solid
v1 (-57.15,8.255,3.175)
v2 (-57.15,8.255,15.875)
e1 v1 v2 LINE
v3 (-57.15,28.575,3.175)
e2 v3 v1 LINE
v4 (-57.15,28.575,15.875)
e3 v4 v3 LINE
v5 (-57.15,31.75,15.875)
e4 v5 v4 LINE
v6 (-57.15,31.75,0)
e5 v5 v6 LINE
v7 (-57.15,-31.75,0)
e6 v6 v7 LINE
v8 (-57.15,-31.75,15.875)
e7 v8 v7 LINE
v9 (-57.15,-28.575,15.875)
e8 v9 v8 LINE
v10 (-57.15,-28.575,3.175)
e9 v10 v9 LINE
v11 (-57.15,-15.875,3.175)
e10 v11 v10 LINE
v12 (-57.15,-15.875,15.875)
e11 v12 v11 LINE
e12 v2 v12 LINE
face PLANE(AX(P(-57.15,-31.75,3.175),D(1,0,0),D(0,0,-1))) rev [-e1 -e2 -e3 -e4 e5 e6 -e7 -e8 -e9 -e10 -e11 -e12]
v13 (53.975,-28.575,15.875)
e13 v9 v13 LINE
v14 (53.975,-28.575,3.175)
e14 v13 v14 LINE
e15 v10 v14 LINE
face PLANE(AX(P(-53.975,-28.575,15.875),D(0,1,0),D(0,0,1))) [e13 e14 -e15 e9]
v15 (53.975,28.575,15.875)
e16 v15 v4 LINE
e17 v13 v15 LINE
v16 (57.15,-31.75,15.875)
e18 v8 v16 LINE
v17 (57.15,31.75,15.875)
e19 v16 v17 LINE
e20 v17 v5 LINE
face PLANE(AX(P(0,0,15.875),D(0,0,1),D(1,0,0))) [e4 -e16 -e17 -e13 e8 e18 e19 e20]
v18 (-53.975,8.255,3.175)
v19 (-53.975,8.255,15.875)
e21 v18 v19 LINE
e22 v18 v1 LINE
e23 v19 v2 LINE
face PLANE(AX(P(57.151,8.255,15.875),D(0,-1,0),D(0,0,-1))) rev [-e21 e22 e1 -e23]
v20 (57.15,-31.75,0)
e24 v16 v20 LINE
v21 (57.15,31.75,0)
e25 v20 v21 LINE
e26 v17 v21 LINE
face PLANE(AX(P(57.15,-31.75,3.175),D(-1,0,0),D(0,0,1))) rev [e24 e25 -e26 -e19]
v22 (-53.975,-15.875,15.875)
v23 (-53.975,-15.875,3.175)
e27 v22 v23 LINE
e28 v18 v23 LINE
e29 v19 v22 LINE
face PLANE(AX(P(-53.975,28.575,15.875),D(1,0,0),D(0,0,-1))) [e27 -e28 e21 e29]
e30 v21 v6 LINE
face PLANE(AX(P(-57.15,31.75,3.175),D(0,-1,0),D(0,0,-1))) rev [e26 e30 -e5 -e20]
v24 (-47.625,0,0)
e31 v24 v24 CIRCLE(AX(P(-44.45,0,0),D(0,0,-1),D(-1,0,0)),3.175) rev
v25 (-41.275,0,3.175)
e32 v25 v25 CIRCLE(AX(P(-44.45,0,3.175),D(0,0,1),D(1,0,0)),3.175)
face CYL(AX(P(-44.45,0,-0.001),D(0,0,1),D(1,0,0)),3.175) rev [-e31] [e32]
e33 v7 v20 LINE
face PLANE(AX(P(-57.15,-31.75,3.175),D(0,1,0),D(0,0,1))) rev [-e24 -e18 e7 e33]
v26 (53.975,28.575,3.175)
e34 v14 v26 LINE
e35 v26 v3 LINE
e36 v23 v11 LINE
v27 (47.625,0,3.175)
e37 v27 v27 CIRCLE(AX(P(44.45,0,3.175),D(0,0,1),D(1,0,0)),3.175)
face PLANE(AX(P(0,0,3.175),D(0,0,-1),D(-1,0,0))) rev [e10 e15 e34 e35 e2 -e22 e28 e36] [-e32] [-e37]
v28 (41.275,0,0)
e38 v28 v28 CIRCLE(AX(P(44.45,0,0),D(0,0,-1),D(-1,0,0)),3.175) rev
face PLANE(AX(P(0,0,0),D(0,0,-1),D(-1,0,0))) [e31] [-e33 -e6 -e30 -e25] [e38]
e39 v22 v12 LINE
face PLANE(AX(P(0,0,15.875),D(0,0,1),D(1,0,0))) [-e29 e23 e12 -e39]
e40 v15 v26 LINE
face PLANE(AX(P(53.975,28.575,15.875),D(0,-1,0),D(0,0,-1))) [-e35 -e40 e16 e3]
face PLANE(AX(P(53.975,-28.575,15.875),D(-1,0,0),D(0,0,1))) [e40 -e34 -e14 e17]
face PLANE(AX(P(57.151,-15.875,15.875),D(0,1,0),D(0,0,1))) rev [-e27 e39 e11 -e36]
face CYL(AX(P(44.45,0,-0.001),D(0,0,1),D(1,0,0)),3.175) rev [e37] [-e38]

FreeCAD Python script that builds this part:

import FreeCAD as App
import Part
import Sketcher
Q = App.Units.Quantity

doc = App.newDocument("Part")
body = doc.addObject("PartDesign::Body", "Body")

# Sketch on XY plane
sketch1 = body.newObject("Sketcher::SketchObject", "Sketch")
sketch1.AttachmentSupport = (doc.getObject("XY_Plane"), [""])
sketch1.MapMode = "FlatFace"
sketch1.addGeometry([
    Part.LineSegment(App.Vector(-57.15, 31.75, 0), App.Vector(-57.15, -31.75, 0)),
    Part.LineSegment(App.Vector(-57.15, -31.75, 0), App.Vector(57.15, -31.75, 0)),
    Part.LineSegment(App.Vector(57.15, -31.75, 0), App.Vector(57.15, 31.75, 0)),
    Part.LineSegment(App.Vector(57.15, 31.75, 0), App.Vector(-57.15, 31.75, 0)),
], False)
sketch1.addConstraint([
    Sketcher.Constraint("Coincident", 0, 2, 1, 1),
    Sketcher.Constraint("Coincident", 1, 2, 2, 1),
    Sketcher.Constraint("Coincident", 2, 2, 3, 1),
    Sketcher.Constraint("Coincident", 3, 2, 0, 1),
    Sketcher.Constraint("Vertical", 0),
    Sketcher.Constraint("Horizontal", 1),
    Sketcher.Constraint("Vertical", 2),
    Sketcher.Constraint("Horizontal", 3),
    Sketcher.Constraint("Symmetric", 0, 2, 2, 2, -1, 1),
    Sketcher.Constraint("DistanceX", 1, 1, 1, 2, Q("4.5 in")),
    Sketcher.Constraint("DistanceY", 0, 2, 0, 1, Q("2.5 in")),
])
pad1 = body.newObject("PartDesign::Pad", "Pad")
pad1.Profile = sketch1
pad1.Length = Q("0.125 in")

# Sketch on XY plane
sketch2 = body.newObject("Sketcher::SketchObject", "Sketch001")
sketch2.AttachmentSupport = (doc.getObject("XY_Plane"), [""])
sketch2.MapMode = "FlatFace"
sketch2.AttachmentOffset = App.Placement(App.Vector(0, 0, 0.125 * 25.4), App.Rotation())
sketch2.addGeometry([
    Part.LineSegment(App.Vector(-57.15, 31.75, 0), App.Vector(-57.15, -31.75, 0)),  # 0
    Part.LineSegment(App.Vector(-57.15, -31.75, 0), App.Vector(57.15, -31.75, 0)),  # 1
    Part.LineSegment(App.Vector(57.15, -31.75, 0), App.Vector(57.15, 31.75, 0)),  # 2
    Part.LineSegment(App.Vector(57.15, 31.75, 0), App.Vector(-57.15, 31.75, 0)),  # 3
    Part.LineSegment(App.Vector(53.975, -28.575, 0), App.Vector(-53.975, -28.575, 0)),  # 4
    Part.LineSegment(App.Vector(-53.975, -28.575, 0), App.Vector(-53.975, 28.575, 0)),  # 5
    Part.LineSegment(App.Vector(-53.975, 28.575, 0), App.Vector(53.975, 28.575, 0)),  # 6
    Part.LineSegment(App.Vector(53.975, 28.575, 0), App.Vector(53.975, -28.575, 0)),  # 7
], False)
sketch2.addConstraint([
    Sketcher.Constraint("Coincident", 0, 2, 1, 1),
    Sketcher.Constraint("Coincident", 1, 2, 2, 1),
    Sketcher.Constraint("Coincident", 2, 2, 3, 1),
    Sketcher.Constraint("Coincident", 3, 2, 0, 1),
    Sketcher.Constraint("Coincident", 4, 2, 5, 1),
    Sketcher.Constraint("Coincident", 5, 2, 6, 1),
    Sketcher.Constraint("Coincident", 6, 2, 7, 1),
    Sketcher.Constraint("Coincident", 7, 2, 4, 1),
    Sketcher.Constraint("Vertical", 0),
    Sketcher.Constraint("Horizontal", 1),
    Sketcher.Constraint("Vertical", 2),
    Sketcher.Constraint("Horizontal", 3),
    Sketcher.Constraint("Horizontal", 4),
    Sketcher.Constraint("Vertical", 5),
    Sketcher.Constraint("Horizontal", 6),
    Sketcher.Constraint("Vertical", 7),
    Sketcher.Constraint("Symmetric", 0, 2, 2, 2, -1, 1),
    Sketcher.Constraint("Symmetric", 4, 2, 6, 2, -1, 1),
    Sketcher.Constraint("DistanceX", 1, 1, 1, 2, Q("4.5 in")),
    Sketcher.Constraint("DistanceY", 0, 2, 0, 1, Q("2.5 in")),
    Sketcher.Constraint("DistanceX", 4, 2, 4, 1, Q("4.25 in")),
    Sketcher.Constraint("DistanceY", 5, 1, 5, 2, Q("2.25 in")),
])
pad2 = body.newObject("PartDesign::Pad", "Pad001")
pad2.Profile = sketch2
pad2.Length = Q("0.5 in")

# Sketch on YZ plane
sketch3 = body.newObject("Sketcher::SketchObject", "Sketch002")
sketch3.AttachmentSupport = (doc.getObject("YZ_Plane"), [""])
sketch3.MapMode = "FlatFace"
sketch3.AttachmentOffset = App.Placement(App.Vector(0, 0, -2.25 * 25.4), App.Rotation())
sketch3.addGeometry([
    Part.LineSegment(App.Vector(-15.875, 3.175, 0), App.Vector(-28.575, 3.175, 0)),
    Part.LineSegment(App.Vector(-28.575, 3.175, 0), App.Vector(-28.575, 15.875, 0)),
    Part.LineSegment(App.Vector(-28.575, 15.875, 0), App.Vector(-15.875, 15.875, 0)),
    Part.LineSegment(App.Vector(-15.875, 15.875, 0), App.Vector(-15.875, 3.175, 0)),
], False)
sketch3.addConstraint([
    Sketcher.Constraint("Coincident", 0, 2, 1, 1),
    Sketcher.Constraint("Coincident", 1, 2, 2, 1),
    Sketcher.Constraint("Coincident", 2, 2, 3, 1),
    Sketcher.Constraint("Coincident", 3, 2, 0, 1),
    Sketcher.Constraint("Horizontal", 0),
    Sketcher.Constraint("Vertical", 1),
    Sketcher.Constraint("Horizontal", 2),
    Sketcher.Constraint("Vertical", 3),
    Sketcher.Constraint("Equal", 2, 1),
    Sketcher.Constraint("DistanceX", 0, 2, 0, 1, Q("0.5 in")),
    Sketcher.Constraint("DistanceX", 0, 2, -1, 1, Q("1.125 in")),
    Sketcher.Constraint("DistanceY", -1, 1, 0, 2, Q("0.125 in")),
])
pocket1 = body.newObject("PartDesign::Pocket", "Pocket")
pocket1.Profile = sketch3
pocket1.Type = "UpToFirst"
pocket1.Reversed = True

# Sketch on YZ plane
sketch4 = body.newObject("Sketcher::SketchObject", "Sketch003")
sketch4.AttachmentSupport = (doc.getObject("YZ_Plane"), [""])
sketch4.MapMode = "FlatFace"
sketch4.AttachmentOffset = App.Placement(App.Vector(0, 0, -2.25 * 25.4), App.Rotation())
sketch4.addGeometry([
    Part.LineSegment(App.Vector(28.575, 3.175, 0), App.Vector(8.255, 3.175, 0)),
    Part.LineSegment(App.Vector(8.255, 3.175, 0), App.Vector(8.255, 15.875, 0)),
    Part.LineSegment(App.Vector(8.255, 15.875, 0), App.Vector(28.575, 15.875, 0)),
    Part.LineSegment(App.Vector(28.575, 15.875, 0), App.Vector(28.575, 3.175, 0)),
], False)
sketch4.addConstraint([
    Sketcher.Constraint("Coincident", 0, 2, 1, 1),
    Sketcher.Constraint("Coincident", 1, 2, 2, 1),
    Sketcher.Constraint("Coincident", 2, 2, 3, 1),
    Sketcher.Constraint("Coincident", 3, 2, 0, 1),
    Sketcher.Constraint("Horizontal", 0),
    Sketcher.Constraint("Vertical", 1),
    Sketcher.Constraint("Horizontal", 2),
    Sketcher.Constraint("Vertical", 3),
    Sketcher.Constraint("DistanceX", 0, 2, 0, 1, Q("0.8 in")),
    Sketcher.Constraint("DistanceY", 1, 1, 1, 2, Q("0.5 in")),
    Sketcher.Constraint("DistanceX", -1, 1, 0, 2, Q("0.325 in")),
    Sketcher.Constraint("DistanceY", -1, 1, 0, 2, Q("0.125 in")),
])
pocket2 = body.newObject("PartDesign::Pocket", "Pocket001")
pocket2.Profile = sketch4
pocket2.Type = "UpToFirst"
pocket2.Reversed = True

# Sketch on XY plane
sketch5 = body.newObject("Sketcher::SketchObject", "Sketch004")
sketch5.AttachmentSupport = (doc.getObject("XY_Plane"), [""])
sketch5.MapMode = "FlatFace"
sketch5.AttachmentOffset = App.Placement(App.Vector(0, 0, 0.125 * 25.4), App.Rotation())
sketch5.addGeometry(Part.Circle(App.Vector(-44.45, 0, 0), App.Vector(0, 0, 1), 3.175), False)
sketch5.addConstraint([
    Sketcher.Constraint("PointOnObject", 0, 3, -1),
    Sketcher.Constraint("Diameter", 0, Q("0.25 in")),
    Sketcher.Constraint("DistanceX", 0, 3, -1, 1, Q("1.75 in")),
])
pocket3 = body.newObject("PartDesign::Pocket", "Pocket002")
pocket3.Profile = sketch5
pocket3.Type = "UpToFirst"

# Sketch on XY plane
sketch6 = body.newObject("Sketcher::SketchObject", "Sketch005")
sketch6.AttachmentSupport = (doc.getObject("XY_Plane"), [""])
sketch6.MapMode = "FlatFace"
sketch6.AttachmentOffset = App.Placement(App.Vector(0, 0, 0.125 * 25.4), App.Rotation())
sketch6.addGeometry(Part.Circle(App.Vector(44.45, 0, 0), App.Vector(0, 0, 1), 3.175), False)
sketch6.addConstraint([
    Sketcher.Constraint("PointOnObject", 0, 3, -1),
    Sketcher.Constraint("Diameter", 0, Q("0.25 in")),
    Sketcher.Constraint("DistanceX", -1, 1, 0, 3, Q("1.75 in")),
])
pocket4 = body.newObject("PartDesign::Pocket", "Pocket003")
pocket4.Profile = sketch6
pocket4.Type = "UpToFirst"

doc.recompute()
